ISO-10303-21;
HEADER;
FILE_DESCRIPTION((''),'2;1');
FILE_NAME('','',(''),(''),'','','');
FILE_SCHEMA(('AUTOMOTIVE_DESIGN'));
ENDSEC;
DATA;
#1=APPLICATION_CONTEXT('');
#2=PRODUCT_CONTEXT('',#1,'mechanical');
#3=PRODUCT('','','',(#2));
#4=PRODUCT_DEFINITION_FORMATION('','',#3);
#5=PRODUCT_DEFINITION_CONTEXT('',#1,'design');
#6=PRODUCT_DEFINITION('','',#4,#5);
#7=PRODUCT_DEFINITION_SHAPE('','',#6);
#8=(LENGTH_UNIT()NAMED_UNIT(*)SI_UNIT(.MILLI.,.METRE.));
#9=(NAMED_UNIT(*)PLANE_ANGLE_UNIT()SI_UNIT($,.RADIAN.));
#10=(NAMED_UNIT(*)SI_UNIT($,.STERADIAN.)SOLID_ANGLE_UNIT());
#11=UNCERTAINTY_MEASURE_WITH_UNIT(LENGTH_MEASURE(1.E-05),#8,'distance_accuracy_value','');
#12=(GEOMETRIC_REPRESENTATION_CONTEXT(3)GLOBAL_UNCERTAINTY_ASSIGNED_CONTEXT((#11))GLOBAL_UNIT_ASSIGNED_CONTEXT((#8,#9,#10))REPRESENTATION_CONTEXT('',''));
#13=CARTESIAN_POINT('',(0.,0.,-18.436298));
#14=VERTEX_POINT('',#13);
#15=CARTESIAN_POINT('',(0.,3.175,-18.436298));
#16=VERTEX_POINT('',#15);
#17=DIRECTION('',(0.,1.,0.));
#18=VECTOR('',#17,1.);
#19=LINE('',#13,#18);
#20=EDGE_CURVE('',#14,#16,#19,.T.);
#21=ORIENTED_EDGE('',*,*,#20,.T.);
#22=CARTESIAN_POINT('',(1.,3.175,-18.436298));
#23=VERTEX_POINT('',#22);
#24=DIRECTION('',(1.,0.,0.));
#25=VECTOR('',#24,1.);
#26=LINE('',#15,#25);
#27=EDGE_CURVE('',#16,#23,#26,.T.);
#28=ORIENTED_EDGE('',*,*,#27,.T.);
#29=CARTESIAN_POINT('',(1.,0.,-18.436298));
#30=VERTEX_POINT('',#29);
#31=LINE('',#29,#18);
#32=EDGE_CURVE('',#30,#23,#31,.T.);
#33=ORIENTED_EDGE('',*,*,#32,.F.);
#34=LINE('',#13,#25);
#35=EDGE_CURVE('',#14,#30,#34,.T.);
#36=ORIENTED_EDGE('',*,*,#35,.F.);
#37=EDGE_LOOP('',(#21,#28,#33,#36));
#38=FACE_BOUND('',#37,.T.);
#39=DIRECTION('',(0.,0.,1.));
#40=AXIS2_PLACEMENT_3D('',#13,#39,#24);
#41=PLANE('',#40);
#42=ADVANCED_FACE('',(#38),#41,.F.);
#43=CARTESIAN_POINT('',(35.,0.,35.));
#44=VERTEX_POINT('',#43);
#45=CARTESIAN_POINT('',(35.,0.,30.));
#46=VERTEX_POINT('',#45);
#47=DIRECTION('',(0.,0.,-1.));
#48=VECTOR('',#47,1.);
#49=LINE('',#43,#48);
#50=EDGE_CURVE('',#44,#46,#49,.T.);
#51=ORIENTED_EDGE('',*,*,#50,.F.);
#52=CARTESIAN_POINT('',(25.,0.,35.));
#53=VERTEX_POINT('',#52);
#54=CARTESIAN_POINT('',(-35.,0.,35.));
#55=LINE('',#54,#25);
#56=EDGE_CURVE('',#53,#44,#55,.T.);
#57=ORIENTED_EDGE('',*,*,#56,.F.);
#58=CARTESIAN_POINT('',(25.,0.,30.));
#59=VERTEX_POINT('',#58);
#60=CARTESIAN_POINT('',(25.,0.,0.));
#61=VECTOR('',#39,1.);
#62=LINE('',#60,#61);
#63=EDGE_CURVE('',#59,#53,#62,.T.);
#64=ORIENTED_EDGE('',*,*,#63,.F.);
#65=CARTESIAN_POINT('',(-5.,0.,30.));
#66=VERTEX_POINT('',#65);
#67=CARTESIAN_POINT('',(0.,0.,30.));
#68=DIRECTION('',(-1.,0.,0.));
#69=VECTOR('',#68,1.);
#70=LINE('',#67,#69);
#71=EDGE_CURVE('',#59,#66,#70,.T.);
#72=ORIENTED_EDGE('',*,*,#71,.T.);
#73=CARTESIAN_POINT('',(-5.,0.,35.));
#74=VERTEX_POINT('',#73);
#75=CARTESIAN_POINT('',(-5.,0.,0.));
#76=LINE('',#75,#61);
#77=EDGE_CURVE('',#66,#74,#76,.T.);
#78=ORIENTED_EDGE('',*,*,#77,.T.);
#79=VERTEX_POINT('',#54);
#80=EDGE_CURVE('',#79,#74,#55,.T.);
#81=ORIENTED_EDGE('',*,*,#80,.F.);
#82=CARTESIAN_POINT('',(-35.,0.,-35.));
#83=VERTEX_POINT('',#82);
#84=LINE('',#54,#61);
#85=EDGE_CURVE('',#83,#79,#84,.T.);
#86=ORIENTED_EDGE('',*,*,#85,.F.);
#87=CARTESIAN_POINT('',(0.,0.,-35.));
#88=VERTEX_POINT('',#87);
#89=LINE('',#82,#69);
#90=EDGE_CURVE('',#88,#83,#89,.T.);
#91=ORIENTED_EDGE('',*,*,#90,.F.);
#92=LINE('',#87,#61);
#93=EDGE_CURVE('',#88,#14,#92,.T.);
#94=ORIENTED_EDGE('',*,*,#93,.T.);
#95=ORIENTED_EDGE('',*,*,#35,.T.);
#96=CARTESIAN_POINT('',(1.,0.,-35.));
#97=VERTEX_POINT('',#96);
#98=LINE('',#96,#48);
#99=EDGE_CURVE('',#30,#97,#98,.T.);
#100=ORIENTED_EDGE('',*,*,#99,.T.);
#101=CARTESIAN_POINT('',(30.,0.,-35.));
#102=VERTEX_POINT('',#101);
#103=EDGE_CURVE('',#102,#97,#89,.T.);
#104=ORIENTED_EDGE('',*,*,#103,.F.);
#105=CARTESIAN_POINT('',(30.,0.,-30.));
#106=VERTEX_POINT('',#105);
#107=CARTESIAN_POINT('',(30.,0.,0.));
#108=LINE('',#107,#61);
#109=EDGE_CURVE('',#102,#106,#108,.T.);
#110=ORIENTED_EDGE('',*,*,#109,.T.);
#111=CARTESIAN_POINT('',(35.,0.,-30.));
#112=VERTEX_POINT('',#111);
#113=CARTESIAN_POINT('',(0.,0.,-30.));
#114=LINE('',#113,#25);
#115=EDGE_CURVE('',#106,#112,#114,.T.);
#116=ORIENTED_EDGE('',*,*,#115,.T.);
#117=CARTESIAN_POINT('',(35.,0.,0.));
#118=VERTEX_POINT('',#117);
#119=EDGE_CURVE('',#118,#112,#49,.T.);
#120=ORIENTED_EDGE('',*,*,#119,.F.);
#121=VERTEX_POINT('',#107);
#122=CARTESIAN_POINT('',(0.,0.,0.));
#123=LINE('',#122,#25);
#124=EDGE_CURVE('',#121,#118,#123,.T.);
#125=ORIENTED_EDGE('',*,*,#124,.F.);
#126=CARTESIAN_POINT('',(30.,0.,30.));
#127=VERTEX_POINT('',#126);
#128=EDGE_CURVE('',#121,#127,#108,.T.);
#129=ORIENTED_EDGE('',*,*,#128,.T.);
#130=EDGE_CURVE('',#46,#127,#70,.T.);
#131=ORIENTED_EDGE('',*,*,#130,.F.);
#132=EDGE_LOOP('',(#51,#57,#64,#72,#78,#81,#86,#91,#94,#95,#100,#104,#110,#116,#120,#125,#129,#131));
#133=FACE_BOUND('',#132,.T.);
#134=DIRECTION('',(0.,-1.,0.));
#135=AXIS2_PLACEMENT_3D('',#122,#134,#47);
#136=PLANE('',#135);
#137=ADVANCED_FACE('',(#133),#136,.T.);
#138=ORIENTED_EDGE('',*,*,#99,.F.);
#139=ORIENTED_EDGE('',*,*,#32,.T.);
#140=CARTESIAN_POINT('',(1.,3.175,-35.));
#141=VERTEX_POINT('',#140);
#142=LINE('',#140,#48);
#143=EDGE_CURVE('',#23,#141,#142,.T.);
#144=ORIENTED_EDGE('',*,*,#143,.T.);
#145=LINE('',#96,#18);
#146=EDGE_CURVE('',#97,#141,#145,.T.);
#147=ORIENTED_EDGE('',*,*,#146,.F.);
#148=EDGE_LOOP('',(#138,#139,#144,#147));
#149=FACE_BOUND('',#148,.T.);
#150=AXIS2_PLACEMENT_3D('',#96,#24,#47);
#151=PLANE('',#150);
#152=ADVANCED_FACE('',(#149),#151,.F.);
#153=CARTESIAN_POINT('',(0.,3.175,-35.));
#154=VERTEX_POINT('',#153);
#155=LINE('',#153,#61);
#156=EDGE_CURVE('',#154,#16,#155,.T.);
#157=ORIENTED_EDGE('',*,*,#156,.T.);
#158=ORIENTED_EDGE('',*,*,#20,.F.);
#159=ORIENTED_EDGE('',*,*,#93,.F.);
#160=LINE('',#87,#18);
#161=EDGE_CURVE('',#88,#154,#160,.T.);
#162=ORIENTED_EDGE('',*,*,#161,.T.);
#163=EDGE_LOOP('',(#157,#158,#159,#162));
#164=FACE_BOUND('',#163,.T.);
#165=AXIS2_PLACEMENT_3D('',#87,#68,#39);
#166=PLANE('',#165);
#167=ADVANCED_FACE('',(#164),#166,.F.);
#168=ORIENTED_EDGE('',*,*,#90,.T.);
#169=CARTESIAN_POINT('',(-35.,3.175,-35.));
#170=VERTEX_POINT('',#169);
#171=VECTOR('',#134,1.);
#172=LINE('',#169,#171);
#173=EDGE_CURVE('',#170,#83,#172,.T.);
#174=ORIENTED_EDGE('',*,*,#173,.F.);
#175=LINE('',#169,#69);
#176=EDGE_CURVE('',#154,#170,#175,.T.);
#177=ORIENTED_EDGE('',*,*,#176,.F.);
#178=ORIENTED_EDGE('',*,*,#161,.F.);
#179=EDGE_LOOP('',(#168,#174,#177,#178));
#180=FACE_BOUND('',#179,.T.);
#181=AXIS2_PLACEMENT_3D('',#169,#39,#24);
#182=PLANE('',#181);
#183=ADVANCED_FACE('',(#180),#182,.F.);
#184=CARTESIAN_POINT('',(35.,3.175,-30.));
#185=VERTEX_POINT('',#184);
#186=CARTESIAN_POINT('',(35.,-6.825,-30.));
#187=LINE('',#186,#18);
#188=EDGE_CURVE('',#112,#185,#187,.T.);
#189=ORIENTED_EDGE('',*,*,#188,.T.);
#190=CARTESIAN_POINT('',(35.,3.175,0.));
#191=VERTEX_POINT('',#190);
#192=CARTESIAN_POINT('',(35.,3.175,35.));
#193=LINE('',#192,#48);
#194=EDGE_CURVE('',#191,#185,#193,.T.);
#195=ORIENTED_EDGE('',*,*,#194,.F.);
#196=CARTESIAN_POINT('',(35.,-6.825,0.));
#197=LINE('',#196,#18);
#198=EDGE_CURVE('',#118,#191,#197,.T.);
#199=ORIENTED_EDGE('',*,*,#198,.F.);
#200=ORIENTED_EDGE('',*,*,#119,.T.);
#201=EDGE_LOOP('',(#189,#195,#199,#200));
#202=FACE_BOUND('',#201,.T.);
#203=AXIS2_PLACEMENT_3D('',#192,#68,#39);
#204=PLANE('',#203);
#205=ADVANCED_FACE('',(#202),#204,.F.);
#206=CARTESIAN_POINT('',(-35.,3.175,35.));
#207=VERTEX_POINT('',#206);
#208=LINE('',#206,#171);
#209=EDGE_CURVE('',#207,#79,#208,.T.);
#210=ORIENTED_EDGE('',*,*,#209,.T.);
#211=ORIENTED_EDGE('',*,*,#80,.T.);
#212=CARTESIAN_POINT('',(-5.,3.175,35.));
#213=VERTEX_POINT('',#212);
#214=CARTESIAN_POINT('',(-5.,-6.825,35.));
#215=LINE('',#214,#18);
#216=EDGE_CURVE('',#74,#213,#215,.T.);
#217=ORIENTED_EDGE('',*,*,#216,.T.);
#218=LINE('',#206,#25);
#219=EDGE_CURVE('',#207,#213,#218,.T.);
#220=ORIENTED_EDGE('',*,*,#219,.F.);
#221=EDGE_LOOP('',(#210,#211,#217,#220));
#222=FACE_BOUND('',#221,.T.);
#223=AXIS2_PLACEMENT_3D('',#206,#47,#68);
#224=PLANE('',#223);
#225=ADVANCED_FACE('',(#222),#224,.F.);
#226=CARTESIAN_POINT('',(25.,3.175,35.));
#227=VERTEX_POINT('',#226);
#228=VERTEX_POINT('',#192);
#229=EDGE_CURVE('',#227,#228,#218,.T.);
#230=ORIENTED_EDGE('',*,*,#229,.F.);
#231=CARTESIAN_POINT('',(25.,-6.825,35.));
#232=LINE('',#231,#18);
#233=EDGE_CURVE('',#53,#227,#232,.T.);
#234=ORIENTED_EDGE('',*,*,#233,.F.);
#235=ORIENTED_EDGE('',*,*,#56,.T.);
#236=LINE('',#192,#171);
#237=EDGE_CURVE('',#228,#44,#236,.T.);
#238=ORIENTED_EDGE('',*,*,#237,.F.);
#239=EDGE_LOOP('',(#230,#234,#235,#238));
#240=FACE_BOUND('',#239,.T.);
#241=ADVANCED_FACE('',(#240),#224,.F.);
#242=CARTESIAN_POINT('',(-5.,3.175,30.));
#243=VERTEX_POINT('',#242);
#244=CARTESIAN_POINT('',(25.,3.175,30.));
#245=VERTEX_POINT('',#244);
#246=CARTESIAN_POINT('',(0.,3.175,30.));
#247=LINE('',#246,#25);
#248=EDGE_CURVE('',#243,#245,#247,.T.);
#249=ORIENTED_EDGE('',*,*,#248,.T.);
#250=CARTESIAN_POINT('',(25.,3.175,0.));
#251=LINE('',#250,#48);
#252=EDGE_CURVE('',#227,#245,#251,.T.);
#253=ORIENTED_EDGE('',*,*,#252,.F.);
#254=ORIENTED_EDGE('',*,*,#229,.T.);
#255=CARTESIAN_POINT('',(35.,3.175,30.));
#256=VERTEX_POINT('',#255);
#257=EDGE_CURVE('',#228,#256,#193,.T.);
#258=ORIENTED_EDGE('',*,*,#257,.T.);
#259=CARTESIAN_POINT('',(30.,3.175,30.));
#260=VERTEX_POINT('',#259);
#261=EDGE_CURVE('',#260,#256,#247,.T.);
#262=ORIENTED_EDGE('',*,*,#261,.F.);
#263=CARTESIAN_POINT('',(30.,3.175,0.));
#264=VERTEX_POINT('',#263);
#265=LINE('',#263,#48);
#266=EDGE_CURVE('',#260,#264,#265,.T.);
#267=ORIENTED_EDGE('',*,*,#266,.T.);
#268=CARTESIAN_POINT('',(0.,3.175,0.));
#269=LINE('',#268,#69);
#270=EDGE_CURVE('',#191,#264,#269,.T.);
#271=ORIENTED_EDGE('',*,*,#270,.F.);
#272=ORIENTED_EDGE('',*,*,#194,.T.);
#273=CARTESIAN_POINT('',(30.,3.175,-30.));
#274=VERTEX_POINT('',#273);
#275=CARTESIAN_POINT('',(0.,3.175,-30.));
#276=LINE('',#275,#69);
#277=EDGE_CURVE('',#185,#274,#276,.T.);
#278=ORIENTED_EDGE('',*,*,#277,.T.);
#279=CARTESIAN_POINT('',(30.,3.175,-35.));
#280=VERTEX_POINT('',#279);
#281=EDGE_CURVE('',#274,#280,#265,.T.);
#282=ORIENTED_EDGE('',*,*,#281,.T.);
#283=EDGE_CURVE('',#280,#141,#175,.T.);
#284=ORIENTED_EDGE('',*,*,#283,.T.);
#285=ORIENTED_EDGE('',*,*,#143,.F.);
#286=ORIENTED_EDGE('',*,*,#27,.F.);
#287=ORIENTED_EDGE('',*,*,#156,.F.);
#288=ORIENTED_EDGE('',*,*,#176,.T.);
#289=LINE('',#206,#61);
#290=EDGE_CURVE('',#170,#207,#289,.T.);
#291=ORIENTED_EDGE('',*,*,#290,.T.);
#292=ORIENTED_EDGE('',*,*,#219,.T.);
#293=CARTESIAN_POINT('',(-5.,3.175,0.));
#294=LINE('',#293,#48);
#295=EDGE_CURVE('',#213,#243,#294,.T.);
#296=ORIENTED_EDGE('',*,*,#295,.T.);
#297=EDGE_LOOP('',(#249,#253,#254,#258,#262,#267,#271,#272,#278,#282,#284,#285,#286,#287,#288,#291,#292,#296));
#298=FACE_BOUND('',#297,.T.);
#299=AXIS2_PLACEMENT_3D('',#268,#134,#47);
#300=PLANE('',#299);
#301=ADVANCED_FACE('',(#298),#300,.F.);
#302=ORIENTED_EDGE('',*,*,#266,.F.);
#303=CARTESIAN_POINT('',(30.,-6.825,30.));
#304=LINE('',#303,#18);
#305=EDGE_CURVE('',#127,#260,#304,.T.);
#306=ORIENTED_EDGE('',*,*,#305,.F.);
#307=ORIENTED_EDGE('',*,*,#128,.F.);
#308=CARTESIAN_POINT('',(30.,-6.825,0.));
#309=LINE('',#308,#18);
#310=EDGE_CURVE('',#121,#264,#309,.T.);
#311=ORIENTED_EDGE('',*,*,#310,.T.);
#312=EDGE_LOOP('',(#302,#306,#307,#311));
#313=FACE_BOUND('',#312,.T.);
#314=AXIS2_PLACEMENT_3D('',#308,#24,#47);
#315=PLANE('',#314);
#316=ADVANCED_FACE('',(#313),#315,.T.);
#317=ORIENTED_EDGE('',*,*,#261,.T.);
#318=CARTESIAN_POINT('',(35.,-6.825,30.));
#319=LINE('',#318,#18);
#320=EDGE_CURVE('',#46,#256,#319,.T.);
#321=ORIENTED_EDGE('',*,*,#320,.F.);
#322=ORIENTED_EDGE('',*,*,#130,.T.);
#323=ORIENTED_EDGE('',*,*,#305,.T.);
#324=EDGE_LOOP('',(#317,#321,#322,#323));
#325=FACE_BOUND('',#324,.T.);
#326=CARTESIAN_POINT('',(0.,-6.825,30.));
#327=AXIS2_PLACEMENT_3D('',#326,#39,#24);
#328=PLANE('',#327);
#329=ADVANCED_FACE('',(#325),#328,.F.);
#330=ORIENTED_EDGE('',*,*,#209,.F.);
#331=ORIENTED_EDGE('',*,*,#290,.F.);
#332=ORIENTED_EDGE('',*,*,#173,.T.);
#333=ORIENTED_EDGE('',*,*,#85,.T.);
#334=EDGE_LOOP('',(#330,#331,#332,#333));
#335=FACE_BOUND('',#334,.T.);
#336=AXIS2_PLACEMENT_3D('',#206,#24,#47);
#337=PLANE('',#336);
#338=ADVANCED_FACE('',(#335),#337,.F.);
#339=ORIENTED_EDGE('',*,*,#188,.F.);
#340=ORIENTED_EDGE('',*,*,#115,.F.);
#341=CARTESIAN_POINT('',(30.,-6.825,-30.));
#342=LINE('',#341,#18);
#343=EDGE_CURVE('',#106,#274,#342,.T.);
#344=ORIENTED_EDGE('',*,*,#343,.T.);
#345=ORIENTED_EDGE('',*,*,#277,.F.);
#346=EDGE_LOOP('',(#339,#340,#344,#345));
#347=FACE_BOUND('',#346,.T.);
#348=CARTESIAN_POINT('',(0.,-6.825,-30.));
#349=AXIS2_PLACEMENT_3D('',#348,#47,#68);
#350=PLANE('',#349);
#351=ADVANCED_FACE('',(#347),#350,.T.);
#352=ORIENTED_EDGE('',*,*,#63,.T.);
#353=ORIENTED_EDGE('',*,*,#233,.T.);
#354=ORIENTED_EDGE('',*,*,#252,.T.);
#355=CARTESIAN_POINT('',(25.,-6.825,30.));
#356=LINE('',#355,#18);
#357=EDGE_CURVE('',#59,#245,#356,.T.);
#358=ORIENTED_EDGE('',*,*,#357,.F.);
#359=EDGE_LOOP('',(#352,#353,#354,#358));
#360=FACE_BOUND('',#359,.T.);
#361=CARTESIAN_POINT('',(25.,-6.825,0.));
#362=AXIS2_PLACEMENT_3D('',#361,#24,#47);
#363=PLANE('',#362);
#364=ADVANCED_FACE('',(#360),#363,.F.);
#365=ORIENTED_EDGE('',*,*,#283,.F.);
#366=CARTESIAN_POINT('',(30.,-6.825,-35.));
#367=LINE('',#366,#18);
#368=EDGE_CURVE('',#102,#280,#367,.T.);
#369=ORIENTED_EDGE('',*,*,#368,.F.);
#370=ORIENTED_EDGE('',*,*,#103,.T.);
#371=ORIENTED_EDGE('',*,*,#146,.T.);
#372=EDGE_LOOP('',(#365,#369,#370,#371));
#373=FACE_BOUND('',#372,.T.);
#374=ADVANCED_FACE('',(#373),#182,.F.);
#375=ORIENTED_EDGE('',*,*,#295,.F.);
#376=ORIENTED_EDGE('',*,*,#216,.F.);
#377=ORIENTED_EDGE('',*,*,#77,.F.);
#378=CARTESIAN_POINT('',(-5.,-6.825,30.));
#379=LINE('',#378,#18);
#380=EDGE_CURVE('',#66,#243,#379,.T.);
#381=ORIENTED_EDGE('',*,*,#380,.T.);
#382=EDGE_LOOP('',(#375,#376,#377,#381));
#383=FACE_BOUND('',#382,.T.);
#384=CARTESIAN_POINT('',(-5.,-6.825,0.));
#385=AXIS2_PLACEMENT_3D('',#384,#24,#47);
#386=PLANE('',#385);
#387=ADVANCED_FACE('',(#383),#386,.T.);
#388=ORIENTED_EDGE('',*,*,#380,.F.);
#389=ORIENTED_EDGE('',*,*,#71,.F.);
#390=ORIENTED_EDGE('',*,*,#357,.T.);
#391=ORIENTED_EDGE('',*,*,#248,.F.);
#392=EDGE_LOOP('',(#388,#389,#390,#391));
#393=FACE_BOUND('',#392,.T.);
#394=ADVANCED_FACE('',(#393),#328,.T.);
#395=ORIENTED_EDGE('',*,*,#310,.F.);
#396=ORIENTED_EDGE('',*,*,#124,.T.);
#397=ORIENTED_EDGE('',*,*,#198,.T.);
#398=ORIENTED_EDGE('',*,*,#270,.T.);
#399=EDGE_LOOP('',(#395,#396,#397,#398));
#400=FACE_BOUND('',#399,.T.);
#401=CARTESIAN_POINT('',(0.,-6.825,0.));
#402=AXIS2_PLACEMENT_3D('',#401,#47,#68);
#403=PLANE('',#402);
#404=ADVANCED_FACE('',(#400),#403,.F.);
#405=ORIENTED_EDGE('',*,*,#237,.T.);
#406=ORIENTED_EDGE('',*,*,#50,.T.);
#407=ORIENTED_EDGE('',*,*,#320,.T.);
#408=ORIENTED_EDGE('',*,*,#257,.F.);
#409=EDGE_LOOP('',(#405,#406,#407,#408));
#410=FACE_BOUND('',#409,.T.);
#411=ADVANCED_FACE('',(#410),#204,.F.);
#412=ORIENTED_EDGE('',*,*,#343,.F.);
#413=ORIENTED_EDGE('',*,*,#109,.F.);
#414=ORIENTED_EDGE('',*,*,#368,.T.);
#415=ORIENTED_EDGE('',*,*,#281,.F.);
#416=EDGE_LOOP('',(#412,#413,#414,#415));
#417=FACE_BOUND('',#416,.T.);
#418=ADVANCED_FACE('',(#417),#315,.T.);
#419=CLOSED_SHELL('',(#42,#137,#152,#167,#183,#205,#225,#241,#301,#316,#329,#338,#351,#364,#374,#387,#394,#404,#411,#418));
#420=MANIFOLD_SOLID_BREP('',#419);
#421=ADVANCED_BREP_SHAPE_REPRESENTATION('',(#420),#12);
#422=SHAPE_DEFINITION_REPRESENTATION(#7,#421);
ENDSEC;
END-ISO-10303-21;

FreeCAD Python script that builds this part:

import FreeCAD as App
import Part
import Sketcher

V = App.Vector
Q = App.Units.Quantity


def add_polygon(sketch, points):
    """Adds a closed chain of lines whose ends are joined by coincident constraints."""
    first, n = sketch.GeometryCount, len(points)
    for a, b in zip(points, points[1:] + points[:1]):
        sketch.addGeometry(Part.LineSegment(App.Vector(*a, 0), App.Vector(*b, 0)), False)
    for i in range(n):
        sketch.addConstraint(Sketcher.Constraint("Coincident", first + i, 2, first + (i + 1) % n, 1))

doc = App.newDocument("Part")
params = doc.addObject("Spreadsheet::Sheet", "Params")
for row, (alias, value) in enumerate([
    ("sketch1_width", "70 mm"),
    ("pad1_length", "3.175 mm"),
    ("sketch2_width", "1 mm"),
    ("pocket1_length", "3.175 mm"),
    ("sketch3_width", "30 mm"),
    ("sketch3_width2", "5 mm"),
    ("pocket2_length", "10 mm"),
], start=1):
    params.set(f"A{row}", alias)
    params.set(f"B{row}", "=" + value)
    params.setAlias(f"B{row}", alias)

body = doc.addObject("PartDesign::Body", "Body")

# Sketch on XZ plane
sketch1 = body.newObject("Sketcher::SketchObject", "Sketch")
sketch1.AttachmentSupport = (doc.getObject("XZ_Plane"), [""])
sketch1.MapMode = "FlatFace"
add_polygon(sketch1, [(-35, -35), (-35, 35), (35, 35), (35, -35)])  # lines 0-3
sketch1.addConstraint(Sketcher.Constraint("Vertical", 0))
sketch1.addConstraint(Sketcher.Constraint("Horizontal", 1))
sketch1.addConstraint(Sketcher.Constraint("Vertical", 2))
sketch1.addConstraint(Sketcher.Constraint("Horizontal", 3))
sketch1.addConstraint(Sketcher.Constraint("Symmetric", 0, 2, 2, 2, -1, 1))
sketch1.addConstraint(Sketcher.Constraint("Equal", 3, 0))
sketch1.addConstraint(Sketcher.Constraint("DistanceX", 1, 1, 1, 2, Q("70 mm")))
sketch1.setExpression("Constraints[10]", "Params.sketch1_width")
pad1 = body.newObject("PartDesign::Pad", "Pad")
pad1.Profile = sketch1
pad1.setExpression("Length", "Params.pad1_length")
pad1.Reversed = True

# Sketch on XZ plane
sketch2 = body.newObject("Sketcher::SketchObject", "Sketch001")
sketch2.AttachmentSupport = (doc.getObject("XZ_Plane"), [""])
sketch2.MapMode = "FlatFace"
sketch2.AttachmentOffset = App.Placement(V(0, 0, -3.175), App.Rotation())
add_polygon(sketch2, [(0, -35), (0, -18.4), (1, -18.4), (1, -35)])  # lines 0-3
sketch2.addConstraint(Sketcher.Constraint("Vertical", 0))
sketch2.addConstraint(Sketcher.Constraint("Horizontal", 1))
sketch2.addConstraint(Sketcher.Constraint("Vertical", 2))
sketch2.addConstraint(Sketcher.Constraint("Horizontal", 3))
sketch2.addConstraint(Sketcher.Constraint("PointOnObject", 0, 2, -2))
sketch2.addConstraint(Sketcher.Constraint("DistanceX", 1, 1, 1, 2, Q("1 mm")))
sketch2.addConstraint(Sketcher.Constraint("DistanceY", 2, 2, -1, 1, Q("35 mm")))
sketch2.addConstraint(Sketcher.Constraint("DistanceY", 0, 1, 0, 2, Q("16.563702 mm")))
sketch2.setExpression("Constraints[9]", "Params.sketch2_width")
pocket1 = body.newObject("PartDesign::Pocket", "Pocket")
pocket1.Profile = sketch2
pocket1.setExpression("Length", "Params.pocket1_length")
pocket1.Reversed = True

# Sketch on XZ plane
sketch3 = body.newObject("Sketcher::SketchObject", "Sketch002")
sketch3.AttachmentSupport = (doc.getObject("XZ_Plane"), [""])
sketch3.MapMode = "FlatFace"
sketch3.AttachmentOffset = App.Placement(V(0, 0, -3.175), App.Rotation())
add_polygon(sketch3, [(-5, 30), (-5, 35), (25, 35), (25, 30)])  # lines 0-3
add_polygon(sketch3, [(30, 0), (30, 30), (35, 30), (35, 0)])  # lines 4-7
add_polygon(sketch3, [(30, -35), (30, -30), (35, -30), (35, -35)])  # lines 8-11
sketch3.addConstraint(Sketcher.Constraint("Vertical", 0))
sketch3.addConstraint(Sketcher.Constraint("Horizontal", 1))
sketch3.addConstraint(Sketcher.Constraint("Vertical", 2))
sketch3.addConstraint(Sketcher.Constraint("Horizontal", 3))
sketch3.addConstraint(Sketcher.Constraint("Vertical", 4))
sketch3.addConstraint(Sketcher.Constraint("Horizontal", 5))
sketch3.addConstraint(Sketcher.Constraint("Vertical", 6))
sketch3.addConstraint(Sketcher.Constraint("Horizontal", 7))
sketch3.addConstraint(Sketcher.Constraint("Vertical", 8))
sketch3.addConstraint(Sketcher.Constraint("Horizontal", 9))
sketch3.addConstraint(Sketcher.Constraint("Vertical", 10))
sketch3.addConstraint(Sketcher.Constraint("Horizontal", 11))
sketch3.addConstraint(Sketcher.Constraint("Symmetric", 4, 2, 8, 2, -1))
sketch3.addConstraint(Sketcher.Constraint("PointOnObject", 6, 2, -1))
sketch3.addConstraint(Sketcher.Constraint("Horizontal", 3, 2, 4, 2))
sketch3.addConstraint(Sketcher.Constraint("Vertical", 6, 2, 9, 2))
sketch3.addConstraint(Sketcher.Constraint("Equal", 11, 0))
sketch3.addConstraint(Sketcher.Constraint("Equal", 3, 4))
sketch3.addConstraint(Sketcher.Constraint("Equal", 2, 8))
sketch3.addConstraint(Sketcher.Constraint("DistanceX", 1, 1, 1, 2, Q("30 mm")))
sketch3.addConstraint(Sketcher.Constraint("DistanceX", 5, 1, 5, 2, Q("5 mm")))
sketch3.addConstraint(Sketcher.Constraint("DistanceX", 0, 2, -1, 1, Q("5 mm")))
sketch3.addConstraint(Sketcher.Constraint("DistanceX", -1, 1, 4, 2, Q("30 mm")))
sketch3.setExpression("Constraints[31]", "Params.sketch3_width")
sketch3.setExpression("Constraints[32]", "Params.sketch3_width2")
pocket2 = body.newObject("PartDesign::Pocket", "Pocket001")
pocket2.Profile = sketch3
pocket2.setExpression("Length", "Params.pocket2_length")
pocket2.Reversed = True

doc.recompute()
